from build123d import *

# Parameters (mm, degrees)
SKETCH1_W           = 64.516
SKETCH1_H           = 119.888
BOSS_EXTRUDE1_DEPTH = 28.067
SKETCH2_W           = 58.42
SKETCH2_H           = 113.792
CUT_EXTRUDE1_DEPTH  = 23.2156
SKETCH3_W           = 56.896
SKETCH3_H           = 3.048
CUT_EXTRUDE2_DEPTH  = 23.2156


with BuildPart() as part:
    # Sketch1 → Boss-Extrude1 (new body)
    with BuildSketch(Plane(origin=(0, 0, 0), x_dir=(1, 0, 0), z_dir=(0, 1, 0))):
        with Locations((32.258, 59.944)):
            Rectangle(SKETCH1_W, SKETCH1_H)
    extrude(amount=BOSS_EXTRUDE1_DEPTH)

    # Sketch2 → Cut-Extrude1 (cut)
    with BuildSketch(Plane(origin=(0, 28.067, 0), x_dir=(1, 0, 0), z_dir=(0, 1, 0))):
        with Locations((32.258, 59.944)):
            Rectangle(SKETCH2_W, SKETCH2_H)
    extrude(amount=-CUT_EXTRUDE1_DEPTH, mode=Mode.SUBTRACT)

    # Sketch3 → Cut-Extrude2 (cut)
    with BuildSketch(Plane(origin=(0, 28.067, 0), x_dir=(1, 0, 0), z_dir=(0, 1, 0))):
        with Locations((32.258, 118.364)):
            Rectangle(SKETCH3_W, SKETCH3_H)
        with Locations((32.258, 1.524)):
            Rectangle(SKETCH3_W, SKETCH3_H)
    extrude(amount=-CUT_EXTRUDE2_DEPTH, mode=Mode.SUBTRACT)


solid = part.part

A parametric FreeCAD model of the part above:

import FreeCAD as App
import Part
import Sketcher
from FreeCAD import Vector
Q = App.Units.Quantity

doc = App.newDocument("Part")
body = doc.addObject("PartDesign::Body", "Body")

sketch1 = body.newObject("Sketcher::SketchObject", "Sketch")
sketch1.AttachmentSupport = (doc.getObject("XZ_Plane"), [""])
sketch1.MapMode = "FlatFace"
sketch1.addGeometry([
    Part.LineSegment(Vector(0, -120, 0), Vector(0, 0, 0)),
    Part.LineSegment(Vector(0, 0, 0), Vector(65, 0, 0)),
    Part.LineSegment(Vector(65, 0, 0), Vector(65, -120, 0)),
    Part.LineSegment(Vector(65, -120, 0), Vector(0, -120, 0)),
], False)
sketch1.addConstraint([
    Sketcher.Constraint("Coincident", 0, 2, 1, 1),
    Sketcher.Constraint("Coincident", 1, 2, 2, 1),
    Sketcher.Constraint("Coincident", 2, 2, 3, 1),
    Sketcher.Constraint("Coincident", 3, 2, 0, 1),
    Sketcher.Constraint("Vertical", 0),
    Sketcher.Constraint("Horizontal", 1),
    Sketcher.Constraint("Vertical", 2),
    Sketcher.Constraint("Horizontal", 3),
    Sketcher.Constraint("Coincident", 0, 2, -1, 1),
    Sketcher.Constraint("DistanceX", 1, 1, 1, 2, Q("2.54 in")),
    Sketcher.Constraint("DistanceY", 0, 1, 0, 2, Q("4.72 in")),
])
pad1 = body.newObject("PartDesign::Pad", "Pad")
pad1.Profile = sketch1
pad1.Length = Q("1.105 in")
pad1.Reversed = True

sketch2 = body.newObject("Sketcher::SketchObject", "Sketch001")
sketch2.AttachmentSupport = (doc.getObject("XZ_Plane"), [""])
sketch2.MapMode = "FlatFace"
sketch2.AttachmentOffset = App.Placement(Vector(0, 0, -1.105 * 25.4), App.Rotation())
sketch2.addGeometry([
    Part.LineSegment(Vector(3, -117, 0), Vector(3, -3, 0)),
    Part.LineSegment(Vector(3, -3, 0), Vector(61, -3, 0)),
    Part.LineSegment(Vector(61, -3, 0), Vector(61, -117, 0)),
    Part.LineSegment(Vector(61, -117, 0), Vector(3, -117, 0)),
], False)
sketch2.addConstraint([
    Sketcher.Constraint("Coincident", 0, 2, 1, 1),
    Sketcher.Constraint("Coincident", 1, 2, 2, 1),
    Sketcher.Constraint("Coincident", 2, 2, 3, 1),
    Sketcher.Constraint("Coincident", 3, 2, 0, 1),
    Sketcher.Constraint("Vertical", 0),
    Sketcher.Constraint("Horizontal", 1),
    Sketcher.Constraint("Vertical", 2),
    Sketcher.Constraint("Horizontal", 3),
    Sketcher.Constraint("DistanceX", 1, 1, 1, 2, Q("2.3 in")),
    Sketcher.Constraint("DistanceY", 0, 1, 0, 2, Q("4.48 in")),
    Sketcher.Constraint("DistanceY", 2, 2, -1, 1, Q("4.6 in")),
    Sketcher.Constraint("DistanceX", -1, 1, 0, 2, Q("0.12 in")),
])
pocket1 = body.newObject("PartDesign::Pocket", "Pocket")
pocket1.Profile = sketch2
pocket1.Length = Q("0.914 in")
pocket1.Reversed = True

sketch3 = body.newObject("Sketcher::SketchObject", "Sketch002")
sketch3.AttachmentSupport = (doc.getObject("XZ_Plane"), [""])
sketch3.MapMode = "FlatFace"
sketch3.AttachmentOffset = App.Placement(Vector(0, 0, -1.105 * 25.4), App.Rotation())
sketch3.addGeometry([
    Part.LineSegment(Vector(3.8, -119.9, 0), Vector(3.8, -116.8, 0)),
    Part.LineSegment(Vector(3.8, -116.8, 0), Vector(60.7, -116.8, 0)),
    Part.LineSegment(Vector(60.7, -116.8, 0), Vector(60.7, -119.9, 0)),
    Part.LineSegment(Vector(60.7, -119.9, 0), Vector(3.8, -119.9, 0)),
    Part.LineSegment(Vector(3.8, -3, 0), Vector(3.8, 0, 0)),
    Part.LineSegment(Vector(3.8, 0, 0), Vector(60.7, 0, 0)),
    Part.LineSegment(Vector(60.7, 0, 0), Vector(60.7, -3, 0)),
    Part.LineSegment(Vector(60.7, -3, 0), Vector(3.8, -3, 0)),
], False)
sketch3.addConstraint([
    Sketcher.Constraint("Coincident", 0, 2, 1, 1),
    Sketcher.Constraint("Coincident", 1, 2, 2, 1),
    Sketcher.Constraint("Coincident", 2, 2, 3, 1),
    Sketcher.Constraint("Coincident", 3, 2, 0, 1),
    Sketcher.Constraint("Coincident", 4, 2, 5, 1),
    Sketcher.Constraint("Coincident", 5, 2, 6, 1),
    Sketcher.Constraint("Coincident", 6, 2, 7, 1),
    Sketcher.Constraint("Coincident", 7, 2, 4, 1),
    Sketcher.Constraint("Vertical", 0),
    Sketcher.Constraint("Horizontal", 1),
    Sketcher.Constraint("Vertical", 2),
    Sketcher.Constraint("Horizontal", 3),
    Sketcher.Constraint("Vertical", 4),
    Sketcher.Constraint("Horizontal", 5),
    Sketcher.Constraint("Vertical", 6),
    Sketcher.Constraint("Horizontal", 7),
    Sketcher.Constraint("PointOnObject", 4, 2, -1),
    Sketcher.Constraint("Vertical", 3, 2, 4, 2),
    Sketcher.Constraint("Vertical", 2, 2, 5, 2),
    Sketcher.Constraint("Equal", 2, 4),
    Sketcher.Constraint("DistanceX", 1, 1, 1, 2, Q("2.24 in")),
    Sketcher.Constraint("DistanceY", 0, 1, 0, 2, Q("0.12 in")),
    Sketcher.Constraint("DistanceY", 0, 2, -1, 1, Q("4.6 in")),
    Sketcher.Constraint("DistanceX", -1, 1, 0, 2, Q("0.15 in")),
])
pocket2 = body.newObject("PartDesign::Pocket", "Pocket001")
pocket2.Profile = sketch3
pocket2.Length = Q("0.914 in")
pocket2.Reversed = True

doc.recompute()
